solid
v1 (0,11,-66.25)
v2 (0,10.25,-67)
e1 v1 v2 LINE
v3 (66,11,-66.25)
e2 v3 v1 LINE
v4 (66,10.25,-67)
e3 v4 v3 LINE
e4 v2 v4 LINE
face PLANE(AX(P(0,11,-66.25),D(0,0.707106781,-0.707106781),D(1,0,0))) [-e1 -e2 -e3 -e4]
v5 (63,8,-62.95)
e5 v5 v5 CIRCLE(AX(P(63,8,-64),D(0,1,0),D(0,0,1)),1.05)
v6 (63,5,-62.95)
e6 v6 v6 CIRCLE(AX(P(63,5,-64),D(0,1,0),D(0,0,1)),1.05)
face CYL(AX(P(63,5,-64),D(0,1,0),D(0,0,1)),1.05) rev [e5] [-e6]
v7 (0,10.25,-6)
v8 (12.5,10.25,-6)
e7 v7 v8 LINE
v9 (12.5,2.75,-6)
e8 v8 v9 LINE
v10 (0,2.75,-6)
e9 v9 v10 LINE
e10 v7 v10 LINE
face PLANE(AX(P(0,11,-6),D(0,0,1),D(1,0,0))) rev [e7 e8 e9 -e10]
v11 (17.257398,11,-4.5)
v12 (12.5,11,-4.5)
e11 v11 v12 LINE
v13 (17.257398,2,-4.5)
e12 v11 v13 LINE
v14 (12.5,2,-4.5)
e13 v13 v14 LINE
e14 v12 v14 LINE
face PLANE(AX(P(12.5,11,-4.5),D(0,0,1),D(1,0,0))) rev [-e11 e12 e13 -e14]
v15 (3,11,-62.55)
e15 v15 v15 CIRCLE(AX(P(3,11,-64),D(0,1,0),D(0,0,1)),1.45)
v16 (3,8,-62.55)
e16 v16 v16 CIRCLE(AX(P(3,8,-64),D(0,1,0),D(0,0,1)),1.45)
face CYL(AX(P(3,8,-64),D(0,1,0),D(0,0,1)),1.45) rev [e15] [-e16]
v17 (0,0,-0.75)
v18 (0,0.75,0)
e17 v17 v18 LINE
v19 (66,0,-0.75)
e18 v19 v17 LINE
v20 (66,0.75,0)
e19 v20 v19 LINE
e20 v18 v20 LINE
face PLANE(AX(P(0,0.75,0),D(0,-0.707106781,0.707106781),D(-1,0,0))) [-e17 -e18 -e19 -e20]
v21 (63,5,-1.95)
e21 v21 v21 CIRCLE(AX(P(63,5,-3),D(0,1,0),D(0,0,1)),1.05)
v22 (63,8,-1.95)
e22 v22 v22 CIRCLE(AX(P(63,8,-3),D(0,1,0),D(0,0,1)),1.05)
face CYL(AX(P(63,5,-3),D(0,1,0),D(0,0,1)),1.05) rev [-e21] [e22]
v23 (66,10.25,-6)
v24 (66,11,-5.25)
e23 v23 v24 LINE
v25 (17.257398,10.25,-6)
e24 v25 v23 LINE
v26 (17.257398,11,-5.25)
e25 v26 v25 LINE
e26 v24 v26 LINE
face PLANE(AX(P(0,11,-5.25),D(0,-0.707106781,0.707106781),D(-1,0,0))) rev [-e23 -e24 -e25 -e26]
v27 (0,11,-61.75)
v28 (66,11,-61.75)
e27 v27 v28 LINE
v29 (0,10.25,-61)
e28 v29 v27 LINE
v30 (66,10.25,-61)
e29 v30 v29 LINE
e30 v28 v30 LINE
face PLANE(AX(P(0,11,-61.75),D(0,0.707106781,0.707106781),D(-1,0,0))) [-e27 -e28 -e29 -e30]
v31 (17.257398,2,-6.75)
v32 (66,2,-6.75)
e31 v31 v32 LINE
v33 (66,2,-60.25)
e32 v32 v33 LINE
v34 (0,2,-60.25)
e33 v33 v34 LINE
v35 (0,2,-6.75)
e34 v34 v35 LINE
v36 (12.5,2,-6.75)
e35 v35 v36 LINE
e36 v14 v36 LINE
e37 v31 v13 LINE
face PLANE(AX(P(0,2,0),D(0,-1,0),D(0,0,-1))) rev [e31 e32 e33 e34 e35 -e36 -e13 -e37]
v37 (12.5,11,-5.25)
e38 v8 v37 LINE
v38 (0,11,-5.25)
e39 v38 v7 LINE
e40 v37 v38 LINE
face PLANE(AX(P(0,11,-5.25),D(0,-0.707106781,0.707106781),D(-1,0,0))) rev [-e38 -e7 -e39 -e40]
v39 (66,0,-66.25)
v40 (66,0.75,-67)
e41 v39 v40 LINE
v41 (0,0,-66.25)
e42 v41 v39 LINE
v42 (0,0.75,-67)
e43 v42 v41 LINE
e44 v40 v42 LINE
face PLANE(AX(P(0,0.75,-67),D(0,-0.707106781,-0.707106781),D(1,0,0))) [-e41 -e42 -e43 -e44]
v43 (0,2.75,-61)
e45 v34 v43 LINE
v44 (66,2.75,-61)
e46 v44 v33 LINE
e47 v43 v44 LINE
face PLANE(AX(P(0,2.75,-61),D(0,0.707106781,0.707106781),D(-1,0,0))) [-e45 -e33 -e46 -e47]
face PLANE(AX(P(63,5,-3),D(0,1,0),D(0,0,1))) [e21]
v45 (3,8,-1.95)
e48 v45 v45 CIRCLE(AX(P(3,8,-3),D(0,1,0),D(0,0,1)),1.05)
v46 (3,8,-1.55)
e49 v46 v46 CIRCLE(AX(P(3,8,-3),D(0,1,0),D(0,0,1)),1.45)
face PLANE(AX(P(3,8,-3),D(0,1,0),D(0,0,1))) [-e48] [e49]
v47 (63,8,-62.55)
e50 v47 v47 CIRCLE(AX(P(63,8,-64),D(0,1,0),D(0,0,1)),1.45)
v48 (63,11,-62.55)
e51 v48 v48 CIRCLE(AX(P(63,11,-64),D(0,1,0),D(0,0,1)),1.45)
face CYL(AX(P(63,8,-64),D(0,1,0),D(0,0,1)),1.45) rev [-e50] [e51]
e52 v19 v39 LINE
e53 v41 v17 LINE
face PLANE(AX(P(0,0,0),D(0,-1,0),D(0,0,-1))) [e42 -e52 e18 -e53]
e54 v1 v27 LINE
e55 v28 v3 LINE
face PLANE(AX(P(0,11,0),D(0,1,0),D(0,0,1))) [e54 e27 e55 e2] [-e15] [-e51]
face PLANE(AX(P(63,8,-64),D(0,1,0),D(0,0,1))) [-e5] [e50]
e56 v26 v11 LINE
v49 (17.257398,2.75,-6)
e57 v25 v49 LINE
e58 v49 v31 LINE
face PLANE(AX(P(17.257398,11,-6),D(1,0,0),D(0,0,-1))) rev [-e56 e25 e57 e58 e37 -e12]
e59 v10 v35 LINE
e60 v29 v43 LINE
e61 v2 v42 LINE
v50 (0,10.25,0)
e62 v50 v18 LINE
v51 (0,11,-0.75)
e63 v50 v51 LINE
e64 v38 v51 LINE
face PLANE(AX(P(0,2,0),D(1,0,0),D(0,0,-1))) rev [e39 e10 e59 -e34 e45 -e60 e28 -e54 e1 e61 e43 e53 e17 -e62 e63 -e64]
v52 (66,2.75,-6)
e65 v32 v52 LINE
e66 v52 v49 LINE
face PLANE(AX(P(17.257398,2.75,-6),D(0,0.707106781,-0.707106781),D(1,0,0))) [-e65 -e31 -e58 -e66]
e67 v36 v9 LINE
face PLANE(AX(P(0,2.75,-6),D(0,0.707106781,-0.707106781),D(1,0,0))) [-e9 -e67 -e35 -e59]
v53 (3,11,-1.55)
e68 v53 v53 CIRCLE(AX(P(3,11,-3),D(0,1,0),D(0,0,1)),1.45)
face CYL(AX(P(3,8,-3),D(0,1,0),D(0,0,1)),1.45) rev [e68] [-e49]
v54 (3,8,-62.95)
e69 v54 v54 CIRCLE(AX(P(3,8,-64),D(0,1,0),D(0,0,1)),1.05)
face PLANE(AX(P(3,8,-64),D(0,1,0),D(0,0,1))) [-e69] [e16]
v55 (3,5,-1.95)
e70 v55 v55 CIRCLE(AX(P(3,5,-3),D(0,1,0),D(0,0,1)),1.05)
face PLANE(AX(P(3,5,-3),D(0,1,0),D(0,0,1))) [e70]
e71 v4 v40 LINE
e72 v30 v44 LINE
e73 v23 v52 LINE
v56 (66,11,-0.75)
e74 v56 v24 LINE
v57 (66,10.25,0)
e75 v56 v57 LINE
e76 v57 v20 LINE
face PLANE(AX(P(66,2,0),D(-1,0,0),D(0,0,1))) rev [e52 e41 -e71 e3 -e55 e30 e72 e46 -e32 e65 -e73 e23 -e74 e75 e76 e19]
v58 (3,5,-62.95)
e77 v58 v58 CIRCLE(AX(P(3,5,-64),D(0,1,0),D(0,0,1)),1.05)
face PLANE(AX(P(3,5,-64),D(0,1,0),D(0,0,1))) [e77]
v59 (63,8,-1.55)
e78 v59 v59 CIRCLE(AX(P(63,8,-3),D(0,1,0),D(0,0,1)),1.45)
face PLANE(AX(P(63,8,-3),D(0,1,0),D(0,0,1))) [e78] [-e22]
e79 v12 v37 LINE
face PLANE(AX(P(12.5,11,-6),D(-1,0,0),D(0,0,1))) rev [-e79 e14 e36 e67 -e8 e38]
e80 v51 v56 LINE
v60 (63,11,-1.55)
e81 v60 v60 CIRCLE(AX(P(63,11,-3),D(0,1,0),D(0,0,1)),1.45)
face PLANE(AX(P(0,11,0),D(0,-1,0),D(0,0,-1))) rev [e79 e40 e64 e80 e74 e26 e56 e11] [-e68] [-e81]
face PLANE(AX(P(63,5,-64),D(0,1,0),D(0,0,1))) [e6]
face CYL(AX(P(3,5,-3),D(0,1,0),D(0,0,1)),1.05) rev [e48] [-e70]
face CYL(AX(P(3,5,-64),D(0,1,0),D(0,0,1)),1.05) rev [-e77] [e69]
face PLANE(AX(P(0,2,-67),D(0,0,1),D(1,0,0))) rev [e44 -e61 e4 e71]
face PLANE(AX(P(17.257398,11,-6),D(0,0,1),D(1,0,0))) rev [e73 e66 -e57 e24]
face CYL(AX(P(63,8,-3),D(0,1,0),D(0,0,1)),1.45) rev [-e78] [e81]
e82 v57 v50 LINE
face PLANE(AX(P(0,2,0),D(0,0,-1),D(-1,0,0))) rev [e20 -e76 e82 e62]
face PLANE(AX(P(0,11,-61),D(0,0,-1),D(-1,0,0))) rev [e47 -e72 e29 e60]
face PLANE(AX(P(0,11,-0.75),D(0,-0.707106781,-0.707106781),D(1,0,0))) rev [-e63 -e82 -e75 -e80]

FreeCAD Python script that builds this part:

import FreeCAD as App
import Part
import Sketcher


def edges_at(feature, points):
    """Names of the edges that pass closest to the given points."""
    edges = feature.Shape.Edges
    near = lambda p: min(range(len(edges)), key=lambda i: edges[i].distToShape(Part.Vertex(*p))[0])
    return sorted({f"Edge{near(p) + 1}" for p in points})

doc = App.newDocument("Part")
body = doc.addObject("PartDesign::Body", "Body")

sketch1 = body.newObject("Sketcher::SketchObject", "Sketch")
sketch1.AttachmentSupport = (doc.getObject("XZ_Plane"), [""])
sketch1.MapMode = "FlatFace"
sketch1.addGeometry([
    Part.LineSegment(App.Vector(0, -67, 0), App.Vector(0, 0, 0)),
    Part.LineSegment(App.Vector(0, 0, 0), App.Vector(66, 0, 0)),
    Part.LineSegment(App.Vector(66, 0, 0), App.Vector(66, -67, 0)),
    Part.LineSegment(App.Vector(66, -67, 0), App.Vector(0, -67, 0)),
], False)
sketch1.addConstraint([
    Sketcher.Constraint("Coincident", 0, 2, 1, 1),
    Sketcher.Constraint("Coincident", 1, 2, 2, 1),
    Sketcher.Constraint("Coincident", 2, 2, 3, 1),
    Sketcher.Constraint("Coincident", 3, 2, 0, 1),
    Sketcher.Constraint("Vertical", 0),
    Sketcher.Constraint("Horizontal", 1),
    Sketcher.Constraint("Vertical", 2),
    Sketcher.Constraint("Horizontal", 3),
    Sketcher.Constraint("Coincident", 0, 2, -1, 1),
    Sketcher.Constraint("DistanceX", 1, 1, 1, 2, 66.0),
    Sketcher.Constraint("DistanceY", 0, 1, 0, 2, 67.0),
])
pad1 = body.newObject("PartDesign::Pad", "Pad")
pad1.Profile = sketch1
pad1.Length = 2
pad1.Reversed = True

sketch2 = body.newObject("Sketcher::SketchObject", "Sketch001")
sketch2.AttachmentSupport = (doc.getObject("XZ_Plane"), [""])
sketch2.MapMode = "FlatFace"
sketch2.AttachmentOffset = App.Placement(App.Vector(0, 0, -2), App.Rotation())
sketch2.addGeometry([
    Part.LineSegment(App.Vector(0, -67, 0), App.Vector(0, -61, 0)),
    Part.LineSegment(App.Vector(0, -61, 0), App.Vector(66, -61, 0)),
    Part.LineSegment(App.Vector(66, -61, 0), App.Vector(66, -67, 0)),
    Part.LineSegment(App.Vector(66, -67, 0), App.Vector(0, -67, 0)),
    Part.LineSegment(App.Vector(66, -6, 0), App.Vector(17.3, -6, 0)),
    Part.LineSegment(App.Vector(17.3, -6, 0), App.Vector(17.3, -4.5, 0)),
    Part.LineSegment(App.Vector(17.3, -4.5, 0), App.Vector(12.5, -4.5, 0)),
    Part.LineSegment(App.Vector(12.5, -4.5, 0), App.Vector(12.5, -6, 0)),
    Part.LineSegment(App.Vector(12.5, -6, 0), App.Vector(0, -6, 0)),
    Part.LineSegment(App.Vector(0, -6, 0), App.Vector(0, 0, 0)),
    Part.LineSegment(App.Vector(0, 0, 0), App.Vector(66, 0, 0)),
    Part.LineSegment(App.Vector(66, 0, 0), App.Vector(66, -6, 0)),
], False)
sketch2.addConstraint([
    Sketcher.Constraint("Coincident", 0, 2, 1, 1),
    Sketcher.Constraint("Coincident", 1, 2, 2, 1),
    Sketcher.Constraint("Coincident", 2, 2, 3, 1),
    Sketcher.Constraint("Coincident", 3, 2, 0, 1),
    Sketcher.Constraint("Coincident", 4, 2, 5, 1),
    Sketcher.Constraint("Coincident", 5, 2, 6, 1),
    Sketcher.Constraint("Coincident", 6, 2, 7, 1),
    Sketcher.Constraint("Coincident", 7, 2, 8, 1),
    Sketcher.Constraint("Coincident", 8, 2, 9, 1),
    Sketcher.Constraint("Coincident", 9, 2, 10, 1),
    Sketcher.Constraint("Coincident", 10, 2, 11, 1),
    Sketcher.Constraint("Coincident", 11, 2, 4, 1),
    Sketcher.Constraint("Vertical", 0),
    Sketcher.Constraint("Horizontal", 1),
    Sketcher.Constraint("Vertical", 2),
    Sketcher.Constraint("Horizontal", 3),
    Sketcher.Constraint("Horizontal", 4),
    Sketcher.Constraint("Vertical", 5),
    Sketcher.Constraint("Horizontal", 6),
    Sketcher.Constraint("Vertical", 7),
    Sketcher.Constraint("Horizontal", 8),
    Sketcher.Constraint("Vertical", 9),
    Sketcher.Constraint("Horizontal", 10),
    Sketcher.Constraint("Vertical", 11),
    Sketcher.Constraint("Coincident", 9, 2, -1, 1),
    Sketcher.Constraint("PointOnObject", 0, 2, -2),
    Sketcher.Constraint("Horizontal", 4, 2, 7, 2),
    Sketcher.Constraint("Vertical", 2, 2, 10, 2),
    Sketcher.Constraint("Equal", 2, 9),
    Sketcher.Constraint("DistanceX", 1, 1, 1, 2, 66.0),
    Sketcher.Constraint("DistanceY", 0, 1, 0, 2, 6.0),
    Sketcher.Constraint("DistanceX", 8, 2, 8, 1, 12.5),
    Sketcher.Constraint("DistanceY", 5, 1, 5, 2, 1.5),
    Sketcher.Constraint("DistanceY", 0, 2, -1, 1, 61.0),
    Sketcher.Constraint("DistanceX", 4, 2, 4, 1, 48.742602),
])
pad2 = body.newObject("PartDesign::Pad", "Pad001")
pad2.Profile = sketch2
pad2.Length = 9
pad2.Reversed = True

sketch3 = body.newObject("Sketcher::SketchObject", "Sketch002")
sketch3.AttachmentSupport = (doc.getObject("XZ_Plane"), [""])
sketch3.MapMode = "FlatFace"
sketch3.AttachmentOffset = App.Placement(App.Vector(0, 0, -11), App.Rotation())
sketch3.addGeometry([
    Part.Circle(App.Vector(3, -64, 0), App.Vector(0, 0, 1), 1.4),
    Part.Circle(App.Vector(63, -64, 0), App.Vector(0, 0, 1), 1.4),
    Part.Circle(App.Vector(63, -3, 0), App.Vector(0, 0, 1), 1.4),
    Part.Circle(App.Vector(3, -3, 0), App.Vector(0, 0, 1), 1.4),
], False)
sketch3.addConstraint([
    Sketcher.Constraint("Equal", 0, 1),
    Sketcher.Constraint("Equal", 1, 2),
    Sketcher.Constraint("Equal", 2, 3),
    Sketcher.Constraint("Horizontal", 0, 3, 1, 3),
    Sketcher.Constraint("Horizontal", 2, 3, 3, 3),
    Sketcher.Constraint("Vertical", 1, 3, 2, 3),
    Sketcher.Constraint("Vertical", 0, 3, 3, 3),
    Sketcher.Constraint("Diameter", 0, 2.9),
    Sketcher.Constraint("DistanceX", -1, 1, 0, 3, 3.0),
    Sketcher.Constraint("DistanceY", 0, 3, -1, 1, 64.0),
    Sketcher.Constraint("DistanceX", -1, 1, 1, 3, 63.0),
    Sketcher.Constraint("DistanceY", 2, 3, -1, 1, 3.0),
])
pocket1 = body.newObject("PartDesign::Pocket", "Pocket")
pocket1.Profile = sketch3
pocket1.Length = 3
pocket1.Reversed = True

sketch4 = body.newObject("Sketcher::SketchObject", "Sketch003")
sketch4.AttachmentSupport = (doc.getObject("XZ_Plane"), [""])
sketch4.MapMode = "FlatFace"
sketch4.AttachmentOffset = App.Placement(App.Vector(0, 0, -8), App.Rotation())
sketch4.addGeometry([
    Part.Circle(App.Vector(3, -64, 0), App.Vector(0, 0, 1), 1.1),
    Part.Circle(App.Vector(63, -64, 0), App.Vector(0, 0, 1), 1.1),
    Part.Circle(App.Vector(63, -3, 0), App.Vector(0, 0, 1), 1.1),
    Part.Circle(App.Vector(3, -3, 0), App.Vector(0, 0, 1), 1.1),
], False)
sketch4.addConstraint([
    Sketcher.Constraint("Equal", 0, 1),
    Sketcher.Constraint("Equal", 1, 2),
    Sketcher.Constraint("Equal", 2, 3),
    Sketcher.Constraint("Horizontal", 0, 3, 1, 3),
    Sketcher.Constraint("Horizontal", 2, 3, 3, 3),
    Sketcher.Constraint("Vertical", 1, 3, 2, 3),
    Sketcher.Constraint("Vertical", 0, 3, 3, 3),
    Sketcher.Constraint("Diameter", 0, 2.1),
    Sketcher.Constraint("DistanceX", -1, 1, 0, 3, 3.0),
    Sketcher.Constraint("DistanceY", 0, 3, -1, 1, 64.0),
    Sketcher.Constraint("DistanceX", -1, 1, 1, 3, 63.0),
    Sketcher.Constraint("DistanceY", 2, 3, -1, 1, 3.0),
])
pocket2 = body.newObject("PartDesign::Pocket", "Pocket001")
pocket2.Profile = sketch4
pocket2.Length = 3
pocket2.Reversed = True
doc.recompute()

chamfer = body.newObject("PartDesign::Chamfer", "Chamfer")
chamfer.Base = (pocket2, edges_at(pocket2, [
    (33, 2, -61),
    (33, 11, -61),
    (33, 11, -67),
    (41.629, 2, -6),
    (6.25, 2, -6),
    (33, 11, 0),
    (41.629, 11, -6),
    (6.25, 11, -6),
    (33, 0, -67),
    (33, 0, 0),
]))
chamfer.Size = 0.75

doc.recompute()
